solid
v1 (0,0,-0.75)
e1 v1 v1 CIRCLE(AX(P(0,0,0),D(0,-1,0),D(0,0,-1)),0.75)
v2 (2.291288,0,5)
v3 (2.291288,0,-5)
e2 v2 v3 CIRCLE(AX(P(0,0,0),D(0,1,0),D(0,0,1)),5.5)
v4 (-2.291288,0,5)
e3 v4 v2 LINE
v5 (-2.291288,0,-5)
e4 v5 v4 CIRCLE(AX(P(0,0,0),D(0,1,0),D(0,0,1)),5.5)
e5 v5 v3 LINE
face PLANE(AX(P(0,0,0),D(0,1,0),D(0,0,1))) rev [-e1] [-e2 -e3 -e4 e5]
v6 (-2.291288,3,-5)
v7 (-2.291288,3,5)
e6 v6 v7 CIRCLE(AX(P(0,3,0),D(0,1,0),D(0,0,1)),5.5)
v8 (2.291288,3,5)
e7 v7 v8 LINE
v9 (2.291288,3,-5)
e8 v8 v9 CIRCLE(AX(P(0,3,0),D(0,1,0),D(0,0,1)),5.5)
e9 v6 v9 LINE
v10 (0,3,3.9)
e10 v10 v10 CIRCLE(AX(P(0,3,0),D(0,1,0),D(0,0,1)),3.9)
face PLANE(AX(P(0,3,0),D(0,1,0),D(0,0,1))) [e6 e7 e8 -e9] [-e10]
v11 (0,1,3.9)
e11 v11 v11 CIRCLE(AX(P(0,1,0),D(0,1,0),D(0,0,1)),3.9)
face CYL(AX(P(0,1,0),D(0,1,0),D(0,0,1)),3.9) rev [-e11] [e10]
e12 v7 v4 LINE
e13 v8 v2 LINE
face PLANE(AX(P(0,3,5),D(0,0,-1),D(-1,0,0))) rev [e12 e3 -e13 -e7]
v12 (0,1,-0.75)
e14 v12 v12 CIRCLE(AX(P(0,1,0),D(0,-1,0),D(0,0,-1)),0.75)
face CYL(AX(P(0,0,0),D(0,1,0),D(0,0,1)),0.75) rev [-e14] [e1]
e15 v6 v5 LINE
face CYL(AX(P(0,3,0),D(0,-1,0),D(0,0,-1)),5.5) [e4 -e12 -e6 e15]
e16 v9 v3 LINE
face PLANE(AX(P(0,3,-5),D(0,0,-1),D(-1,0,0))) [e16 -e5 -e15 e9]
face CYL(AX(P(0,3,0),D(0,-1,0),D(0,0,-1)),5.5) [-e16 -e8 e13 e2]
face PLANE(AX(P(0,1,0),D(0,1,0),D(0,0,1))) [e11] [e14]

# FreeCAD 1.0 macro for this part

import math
import FreeCAD as App
import Part
import Sketcher

V = App.Vector

doc = App.newDocument("Part")
body = doc.addObject("PartDesign::Body", "Body")

# Sketch on XZ plane
sketch1 = body.newObject("Sketcher::SketchObject", "Sketch")
sketch1.AttachmentSupport = (doc.getObject("XZ_Plane"), [""])
sketch1.MapMode = "FlatFace"
sketch1.addGeometry(Part.ArcOfCircle(Part.Circle(V(0, 0, 0), V(0, 0, 1), 5.5), math.radians(114.619977), math.radians(245.380023)), False)
sketch1.addGeometry(Part.LineSegment(V(-2.291288, 5, 0), V(2.291288, 5, 0)), False)
sketch1.addGeometry(Part.ArcOfCircle(Part.Circle(V(0, 0, 0), V(0, 0, 1), 5.5), math.radians(0), math.radians(65.380023)), False)
sketch1.addGeometry(Part.ArcOfCircle(Part.Circle(V(0, 0, 0), V(0, 0, 1), 5.5), math.radians(-65.380023), math.radians(0)), False)
sketch1.addGeometry(Part.LineSegment(V(2.291288, -5, 0), V(-2.291288, -5, 0)), False)
sketch1.addConstraint(Sketcher.Constraint("Coincident", 0, 1, 1, 1))
sketch1.addConstraint(Sketcher.Constraint("Coincident", 1, 2, 2, 2))
sketch1.addConstraint(Sketcher.Constraint("Tangent", 2, 1, 3, 2))
sketch1.addConstraint(Sketcher.Constraint("Coincident", 3, 1, 4, 1))
sketch1.addConstraint(Sketcher.Constraint("Coincident", 4, 2, 0, 2))
sketch1.addConstraint(Sketcher.Constraint("Horizontal", 1))
sketch1.addConstraint(Sketcher.Constraint("Horizontal", 4))
sketch1.addConstraint(Sketcher.Constraint("Coincident", 0, 3, -1, 1))
sketch1.addConstraint(Sketcher.Constraint("Coincident", 2, 3, -1, 1))
sketch1.addConstraint(Sketcher.Constraint("Equal", 0, 2))
sketch1.addConstraint(Sketcher.Constraint("Equal", 2, 3))
sketch1.addConstraint(Sketcher.Constraint("PointOnObject", 2, 1, -1))
sketch1.addConstraint(Sketcher.Constraint("Vertical", 1, 2, 3, 1))
sketch1.addConstraint(Sketcher.Constraint("Radius", 0, 5.5))
sketch1.addConstraint(Sketcher.Constraint("DistanceY", -1, 1, 0, 1, 5.0))
pad1 = body.newObject("PartDesign::Pad", "Pad")
pad1.Profile = sketch1
pad1.Length = 3
pad1.Reversed = True

# Sketch on XZ plane
sketch2 = body.newObject("Sketcher::SketchObject", "Sketch001")
sketch2.AttachmentSupport = (doc.getObject("XZ_Plane"), [""])
sketch2.MapMode = "FlatFace"
sketch2.AttachmentOffset = App.Placement(V(0, 0, -3), App.Rotation())
sketch2.addGeometry(Part.Circle(V(0, 0, 0), V(0, 0, 1), 3.9), False)
sketch2.addConstraint(Sketcher.Constraint("Coincident", 0, 3, -1, 1))
sketch2.addConstraint(Sketcher.Constraint("Diameter", 0, 7.8))
pocket1 = body.newObject("PartDesign::Pocket", "Pocket")
pocket1.Profile = sketch2
pocket1.Length = 2
pocket1.Reversed = True

# Sketch on XZ plane
sketch3 = body.newObject("Sketcher::SketchObject", "Sketch002")
sketch3.AttachmentSupport = (doc.getObject("XZ_Plane"), [""])
sketch3.MapMode = "FlatFace"
sketch3.AttachmentOffset = App.Placement(V(0, 0, -1), App.Rotation())
sketch3.addGeometry(Part.Circle(V(0, 0, 0), V(0, 0, 1), 0.75), False)
sketch3.addConstraint(Sketcher.Constraint("Coincident", 0, 3, -1, 1))
sketch3.addConstraint(Sketcher.Constraint("Diameter", 0, 1.5))
pocket2 = body.newObject("PartDesign::Pocket", "Pocket001")
pocket2.Profile = sketch3
pocket2.Type = "ThroughAll"
pocket2.Reversed = True

doc.recompute()
